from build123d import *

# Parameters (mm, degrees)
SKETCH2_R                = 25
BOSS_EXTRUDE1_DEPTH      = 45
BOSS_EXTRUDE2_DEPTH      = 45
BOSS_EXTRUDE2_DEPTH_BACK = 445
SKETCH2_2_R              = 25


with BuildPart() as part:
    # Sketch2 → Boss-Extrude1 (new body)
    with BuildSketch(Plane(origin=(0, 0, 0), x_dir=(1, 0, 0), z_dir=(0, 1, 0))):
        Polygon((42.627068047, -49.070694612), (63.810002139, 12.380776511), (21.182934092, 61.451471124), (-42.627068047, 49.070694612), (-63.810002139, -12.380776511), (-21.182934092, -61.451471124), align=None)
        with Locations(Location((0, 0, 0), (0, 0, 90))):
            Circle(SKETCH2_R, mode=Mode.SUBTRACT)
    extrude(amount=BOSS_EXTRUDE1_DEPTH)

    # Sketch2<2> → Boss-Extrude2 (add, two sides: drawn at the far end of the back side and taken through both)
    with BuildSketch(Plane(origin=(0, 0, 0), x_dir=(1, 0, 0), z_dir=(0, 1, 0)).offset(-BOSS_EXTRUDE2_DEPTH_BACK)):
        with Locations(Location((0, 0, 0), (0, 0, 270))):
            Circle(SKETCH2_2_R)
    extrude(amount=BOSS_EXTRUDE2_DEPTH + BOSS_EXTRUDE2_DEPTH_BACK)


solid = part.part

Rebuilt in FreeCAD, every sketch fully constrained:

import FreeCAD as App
import Part
import Sketcher
from FreeCAD import Vector
Q = App.Units.Quantity


def add_polygon(sketch, points):
    """Adds a closed chain of lines whose ends are joined by coincident constraints."""
    first, n = sketch.GeometryCount, len(points)
    for a, b in zip(points, points[1:] + points[:1]):
        sketch.addGeometry(Part.LineSegment(App.Vector(*a, 0), App.Vector(*b, 0)), False)
    for i in range(n):
        sketch.addConstraint(Sketcher.Constraint("Coincident", first + i, 2, first + (i + 1) % n, 1))

doc = App.newDocument("Part")
params = doc.addObject("Spreadsheet::Sheet", "Params")
for row, (alias, value) in enumerate([
    ("sketch1_diameter", "50 mm"),
    ("sketch1_length", "65 mm"),
    ("pad1_length", "45 mm"),
    ("sketch2_diameter", "50 mm"),
    ("pad2_length", "45 mm"),
    ("pad2_length2", "445 mm"),
], start=1):
    params.set(f"A{row}", alias)
    params.set(f"B{row}", "=" + value)
    params.setAlias(f"B{row}", alias)

body = doc.addObject("PartDesign::Body", "Body")

# Sketch on XZ plane
sketch1 = body.newObject("Sketcher::SketchObject", "Sketch")
sketch1.AttachmentSupport = (doc.getObject("XZ_Plane"), [""])
sketch1.MapMode = "FlatFace"
add_polygon(sketch1, [(42.627068, 49.070695), (63.810002, -12.380777), (21.182934, -61.451471), (-42.627068, -49.070695), (-63.810002, 12.380777), (-21.182934, 61.451471)])  # lines 0-5
sketch1.addGeometry(Part.Circle(Vector(0, 0, 0), Vector(0, 0, 1), 25), False)  # 6
sketch1.addConstraint([
    Sketcher.Constraint("Coincident", 6, 3, -1, 1),
    Sketcher.Constraint("Symmetric", 0, 2, 3, 2, -1, 1),
    Sketcher.Constraint("Symmetric", 1, 2, 4, 2, -1, 1),
    Sketcher.Constraint("Symmetric", 2, 2, 5, 2, -1, 1),
    Sketcher.Constraint("Equal", 0, 1),
    Sketcher.Constraint("Equal", 1, 2),
    Sketcher.Constraint("Diameter", 6, Q("50 mm")),
    Sketcher.Constraint("Distance", 0, Q("65 mm")),
    Sketcher.Constraint("DistanceY", 1, 2, -1, 1, Q("61.451471 mm")),
    Sketcher.Constraint("DistanceX", 2, 2, -1, 1, Q("42.627068 mm")),
    Sketcher.Constraint("DistanceX", 1, 2, 0, 2, Q("42.627068 mm")),
])
sketch1.setExpression("Constraints[12]", "Params.sketch1_diameter")
sketch1.setExpression("Constraints[13]", "Params.sketch1_length")
pad1 = body.newObject("PartDesign::Pad", "Pad")
pad1.Profile = sketch1
pad1.setExpression("Length", "Params.pad1_length")
pad1.Reversed = True

# Sketch on XZ plane
sketch2 = body.newObject("Sketcher::SketchObject", "Sketch001")
sketch2.AttachmentSupport = (doc.getObject("XZ_Plane"), [""])
sketch2.MapMode = "FlatFace"
sketch2.addGeometry(Part.Circle(Vector(0, 0, 0), Vector(0, 0, 1), 25), False)
sketch2.addConstraint([
    Sketcher.Constraint("Coincident", 0, 3, -1, 1),
    Sketcher.Constraint("Diameter", 0, Q("50 mm")),
])
sketch2.setExpression("Constraints[1]", "Params.sketch2_diameter")
pad2 = body.newObject("PartDesign::Pad", "Pad001")
pad2.Profile = sketch2
pad2.Type = "TwoLengths"
pad2.setExpression("Length", "Params.pad2_length")
pad2.setExpression("Length2", "Params.pad2_length2")
pad2.Reversed = True

doc.recompute()
